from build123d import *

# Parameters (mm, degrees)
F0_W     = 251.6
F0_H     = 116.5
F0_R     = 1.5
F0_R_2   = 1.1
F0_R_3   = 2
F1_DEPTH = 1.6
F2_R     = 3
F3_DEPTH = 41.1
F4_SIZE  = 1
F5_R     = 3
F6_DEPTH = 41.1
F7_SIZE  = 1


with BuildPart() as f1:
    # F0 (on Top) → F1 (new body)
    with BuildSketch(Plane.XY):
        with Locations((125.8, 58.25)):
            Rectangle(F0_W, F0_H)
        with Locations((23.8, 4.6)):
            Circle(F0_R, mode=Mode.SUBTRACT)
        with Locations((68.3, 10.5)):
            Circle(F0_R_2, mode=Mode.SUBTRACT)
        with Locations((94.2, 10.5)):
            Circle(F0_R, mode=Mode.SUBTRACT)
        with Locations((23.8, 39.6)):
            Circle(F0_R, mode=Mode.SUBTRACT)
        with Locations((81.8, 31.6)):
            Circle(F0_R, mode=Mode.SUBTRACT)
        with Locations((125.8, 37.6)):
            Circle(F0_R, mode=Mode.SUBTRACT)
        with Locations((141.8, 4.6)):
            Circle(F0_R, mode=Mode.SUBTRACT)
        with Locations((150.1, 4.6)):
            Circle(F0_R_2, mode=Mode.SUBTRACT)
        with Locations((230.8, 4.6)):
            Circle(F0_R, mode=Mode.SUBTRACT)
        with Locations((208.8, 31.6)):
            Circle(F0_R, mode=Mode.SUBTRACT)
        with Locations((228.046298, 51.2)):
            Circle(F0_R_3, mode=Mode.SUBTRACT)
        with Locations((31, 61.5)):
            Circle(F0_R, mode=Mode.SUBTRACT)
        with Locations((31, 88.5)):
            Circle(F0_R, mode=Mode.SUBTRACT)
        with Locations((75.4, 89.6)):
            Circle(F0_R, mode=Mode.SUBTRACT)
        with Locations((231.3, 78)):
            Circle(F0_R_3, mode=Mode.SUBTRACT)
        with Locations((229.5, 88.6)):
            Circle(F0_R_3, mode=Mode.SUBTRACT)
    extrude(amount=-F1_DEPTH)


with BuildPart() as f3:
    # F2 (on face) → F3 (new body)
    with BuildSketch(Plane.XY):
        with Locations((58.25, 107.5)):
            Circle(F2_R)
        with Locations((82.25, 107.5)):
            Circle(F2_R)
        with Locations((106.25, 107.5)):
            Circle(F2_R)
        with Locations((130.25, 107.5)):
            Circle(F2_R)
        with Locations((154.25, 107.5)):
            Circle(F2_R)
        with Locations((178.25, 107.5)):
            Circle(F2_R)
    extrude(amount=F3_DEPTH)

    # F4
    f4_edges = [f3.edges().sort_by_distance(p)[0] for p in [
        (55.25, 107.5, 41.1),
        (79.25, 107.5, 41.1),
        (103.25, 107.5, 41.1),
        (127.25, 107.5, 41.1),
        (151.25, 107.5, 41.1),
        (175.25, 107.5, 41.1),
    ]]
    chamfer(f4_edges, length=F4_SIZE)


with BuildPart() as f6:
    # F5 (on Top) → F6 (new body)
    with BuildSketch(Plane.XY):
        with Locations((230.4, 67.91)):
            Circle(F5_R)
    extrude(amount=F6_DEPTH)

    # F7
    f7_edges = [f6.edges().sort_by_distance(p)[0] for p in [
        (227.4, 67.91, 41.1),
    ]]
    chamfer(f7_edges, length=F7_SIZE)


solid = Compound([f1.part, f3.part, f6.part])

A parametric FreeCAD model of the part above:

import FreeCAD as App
import Part
import Sketcher
Q = App.Units.Quantity


def edges_at(feature, points):
    """Names of the edges that pass closest to the given points."""
    edges = feature.Shape.Edges
    near = lambda p: min(range(len(edges)), key=lambda i: edges[i].distToShape(Part.Vertex(*p))[0])
    return sorted({f"Edge{near(p) + 1}" for p in points})


def add_polygon(sketch, points):
    """Adds a closed chain of lines whose ends are joined by coincident constraints."""
    first, n = sketch.GeometryCount, len(points)
    for a, b in zip(points, points[1:] + points[:1]):
        sketch.addGeometry(Part.LineSegment(App.Vector(*a, 0), App.Vector(*b, 0)), False)
    for i in range(n):
        sketch.addConstraint(Sketcher.Constraint("Coincident", first + i, 2, first + (i + 1) % n, 1))

doc = App.newDocument("Part")
params = doc.addObject("Spreadsheet::Sheet", "Params")
for row, (alias, value) in enumerate([
    ("sketch1_diameter", "3 mm"),
    ("sketch1_diameter2", "4 mm"),
    ("sketch1_diameter3", "2.2 mm"),
    ("sketch1_width", "251.6 mm"),
    ("sketch1_height", "116.5 mm"),
    ("pad1_length", "1.6 mm"),
    ("sketch2_diameter", "6 mm"),
    ("pad2_length", "41.1 mm"),
    ("chamfer_size", "1 mm"),
    ("sketch3_diameter", "6 mm"),
    ("pad3_length", "41.1 mm"),
    ("chamfer2_size", "1 mm"),
], start=1):
    params.set(f"A{row}", alias)
    params.set(f"B{row}", "=" + value)
    params.setAlias(f"B{row}", alias)

body = doc.addObject("PartDesign::Body", "Body")

# Sketch on XY plane
sketch1 = body.newObject("Sketcher::SketchObject", "Sketch")
sketch1.AttachmentSupport = (doc.getObject("XY_Plane"), [""])
sketch1.MapMode = "FlatFace"
add_polygon(sketch1, [(0, 116.5), (0, 0), (251.6, 0), (251.6, 116.5)])  # lines 0-3
sketch1.addGeometry(Part.Circle(App.Vector(23.8, 4.6, 0), App.Vector(0, 0, 1), 1.5), False)  # 4
sketch1.addGeometry(Part.Circle(App.Vector(68.3, 10.5, 0), App.Vector(0, 0, 1), 1.1), False)  # 5
sketch1.addGeometry(Part.Circle(App.Vector(94.2, 10.5, 0), App.Vector(0, 0, 1), 1.5), False)  # 6
sketch1.addGeometry(Part.Circle(App.Vector(23.8, 39.6, 0), App.Vector(0, 0, 1), 1.5), False)  # 7
sketch1.addGeometry(Part.Circle(App.Vector(81.8, 31.6, 0), App.Vector(0, 0, 1), 1.5), False)  # 8
sketch1.addGeometry(Part.Circle(App.Vector(125.8, 37.6, 0), App.Vector(0, 0, 1), 1.5), False)  # 9
sketch1.addGeometry(Part.Circle(App.Vector(141.8, 4.6, 0), App.Vector(0, 0, 1), 1.5), False)  # 10
sketch1.addGeometry(Part.Circle(App.Vector(150.1, 4.6, 0), App.Vector(0, 0, 1), 1.1), False)  # 11
sketch1.addGeometry(Part.Circle(App.Vector(230.8, 4.6, 0), App.Vector(0, 0, 1), 1.5), False)  # 12
sketch1.addGeometry(Part.Circle(App.Vector(208.8, 31.6, 0), App.Vector(0, 0, 1), 1.5), False)  # 13
sketch1.addGeometry(Part.Circle(App.Vector(31, 61.5, 0), App.Vector(0, 0, 1), 1.5), False)  # 14
sketch1.addGeometry(Part.Circle(App.Vector(31, 88.5, 0), App.Vector(0, 0, 1), 1.5), False)  # 15
sketch1.addGeometry(Part.Circle(App.Vector(75.4, 89.6, 0), App.Vector(0, 0, 1), 1.5), False)  # 16
sketch1.addGeometry(Part.Circle(App.Vector(228.046298, 51.2, 0), App.Vector(0, 0, 1), 2), False)  # 17
sketch1.addGeometry(Part.Circle(App.Vector(231.3, 78, 0), App.Vector(0, 0, 1), 2), False)  # 18
sketch1.addGeometry(Part.Circle(App.Vector(229.5, 88.6, 0), App.Vector(0, 0, 1), 2), False)  # 19
sketch1.addConstraint([
    Sketcher.Constraint("Vertical", 0),
    Sketcher.Constraint("Horizontal", 1),
    Sketcher.Constraint("Vertical", 2),
    Sketcher.Constraint("Horizontal", 3),
    Sketcher.Constraint("Coincident", 0, 2, -1, 1),
    Sketcher.Constraint("Equal", 4, 6),
    Sketcher.Constraint("Equal", 6, 7),
    Sketcher.Constraint("Equal", 7, 8),
    Sketcher.Constraint("Equal", 8, 9),
    Sketcher.Constraint("Equal", 9, 10),
    Sketcher.Constraint("Equal", 5, 11),
    Sketcher.Constraint("Equal", 10, 12),
    Sketcher.Constraint("Equal", 12, 13),
    Sketcher.Constraint("Equal", 13, 14),
    Sketcher.Constraint("Equal", 14, 15),
    Sketcher.Constraint("Equal", 15, 16),
    Sketcher.Constraint("Equal", 17, 18),
    Sketcher.Constraint("Equal", 18, 19),
    Sketcher.Constraint("Horizontal", 5, 3, 6, 3),
    Sketcher.Constraint("Horizontal", 4, 3, 10, 3),
    Sketcher.Constraint("Horizontal", 10, 3, 11, 3),
    Sketcher.Constraint("Horizontal", 11, 3, 12, 3),
    Sketcher.Constraint("Horizontal", 8, 3, 13, 3),
    Sketcher.Constraint("Vertical", 4, 3, 7, 3),
    Sketcher.Constraint("Vertical", 14, 3, 15, 3),
    Sketcher.Constraint("Diameter", 4, Q("3 mm")),
    Sketcher.Constraint("Diameter", 17, Q("4 mm")),
    Sketcher.Constraint("Diameter", 5, Q("2.2 mm")),
    Sketcher.Constraint("DistanceX", 1, 1, 1, 2, Q("251.6 mm")),
    Sketcher.Constraint("DistanceY", 0, 2, 0, 1, Q("116.5 mm")),
    Sketcher.Constraint("DistanceX", -1, 1, 14, 3, Q("31 mm")),
    Sketcher.Constraint("DistanceY", -1, 1, 18, 3, Q("78 mm")),
    Sketcher.Constraint("DistanceY", 4, 3, 7, 3, Q("35 mm")),
    Sketcher.Constraint("DistanceX", 7, 3, 8, 3, Q("58 mm")),
    Sketcher.Constraint("DistanceY", 8, 3, 7, 3, Q("8 mm")),
    Sketcher.Constraint("DistanceX", 8, 3, 9, 3, Q("44 mm")),
    Sketcher.Constraint("DistanceY", 8, 3, 9, 3, Q("6 mm")),
    Sketcher.Constraint("DistanceX", 9, 3, 10, 3, Q("16 mm")),
    Sketcher.Constraint("DistanceX", 10, 3, 12, 3, Q("89 mm")),
    Sketcher.Constraint("DistanceX", 13, 3, 12, 3, Q("22 mm")),
    Sketcher.Constraint("DistanceY", 5, 3, 14, 3, Q("51 mm")),
    Sketcher.Constraint("DistanceY", 14, 3, 15, 3, Q("27 mm")),
    Sketcher.Constraint("DistanceY", 8, 3, 16, 3, Q("58 mm")),
    Sketcher.Constraint("DistanceY", 13, 3, 19, 3, Q("57 mm")),
    Sketcher.Constraint("DistanceY", 15, 3, 3, 2, Q("28 mm")),
    Sketcher.Constraint("DistanceX", -1, 1, 4, 3, Q("23.8 mm")),
    Sketcher.Constraint("DistanceY", -1, 1, 4, 3, Q("4.6 mm")),
    Sketcher.Constraint("DistanceX", -1, 1, 5, 3, Q("68.3 mm")),
    Sketcher.Constraint("DistanceX", -1, 1, 6, 3, Q("94.2 mm")),
    Sketcher.Constraint("DistanceX", -1, 1, 11, 3, Q("150.1 mm")),
    Sketcher.Constraint("DistanceX", -1, 1, 16, 3, Q("75.4 mm")),
    Sketcher.Constraint("DistanceY", -1, 1, 17, 3, Q("51.2 mm")),
    Sketcher.Constraint("DistanceX", -1, 1, 18, 3, Q("231.3 mm")),
    Sketcher.Constraint("DistanceX", -1, 1, 19, 3, Q("229.5 mm")),
    Sketcher.Constraint("DistanceX", -1, 1, 17, 3, Q("228.046298 mm")),
])
sketch1.setExpression("Constraints[29]", "Params.sketch1_diameter")
sketch1.setExpression("Constraints[30]", "Params.sketch1_diameter2")
sketch1.setExpression("Constraints[31]", "Params.sketch1_diameter3")
sketch1.setExpression("Constraints[32]", "Params.sketch1_width")
sketch1.setExpression("Constraints[33]", "Params.sketch1_height")
pad1 = body.newObject("PartDesign::Pad", "Pad")
pad1.Profile = sketch1
pad1.setExpression("Length", "Params.pad1_length")
pad1.Reversed = True
body2 = doc.addObject("PartDesign::Body", "Body001")
body2.AllowCompound = True

# Sketch on XY plane
sketch2 = body2.newObject("Sketcher::SketchObject", "Sketch001")
sketch2.AttachmentSupport = (doc.getObject("XY_Plane001"), [""])
sketch2.MapMode = "FlatFace"
sketch2.addGeometry([
    Part.Circle(App.Vector(58.25, 107.5, 0), App.Vector(0, 0, 1), 3),  # 0
    Part.Circle(App.Vector(82.25, 107.5, 0), App.Vector(0, 0, 1), 3),  # 1
    Part.Circle(App.Vector(106.25, 107.5, 0), App.Vector(0, 0, 1), 3),  # 2
    Part.Circle(App.Vector(130.25, 107.5, 0), App.Vector(0, 0, 1), 3),  # 3
    Part.Circle(App.Vector(154.25, 107.5, 0), App.Vector(0, 0, 1), 3),  # 4
    Part.Circle(App.Vector(178.25, 107.5, 0), App.Vector(0, 0, 1), 3),  # 5
], False)
sketch2.addConstraint([
    Sketcher.Constraint("Equal", 0, 1),
    Sketcher.Constraint("Equal", 1, 2),
    Sketcher.Constraint("Equal", 2, 3),
    Sketcher.Constraint("Equal", 3, 4),
    Sketcher.Constraint("Equal", 4, 5),
    Sketcher.Constraint("Horizontal", 0, 3, 1, 3),
    Sketcher.Constraint("Horizontal", 1, 3, 2, 3),
    Sketcher.Constraint("Horizontal", 2, 3, 3, 3),
    Sketcher.Constraint("Horizontal", 3, 3, 4, 3),
    Sketcher.Constraint("Horizontal", 4, 3, 5, 3),
    Sketcher.Constraint("Diameter", 0, Q("6 mm")),
    Sketcher.Constraint("DistanceX", 0, 3, 1, 3, Q("24 mm")),
    Sketcher.Constraint("DistanceX", 1, 3, 2, 3, Q("24 mm")),
    Sketcher.Constraint("DistanceX", 2, 3, 3, 3, Q("24 mm")),
    Sketcher.Constraint("DistanceX", 3, 3, 4, 3, Q("24 mm")),
    Sketcher.Constraint("DistanceX", 4, 3, 5, 3, Q("24 mm")),
    Sketcher.Constraint("DistanceY", -1, 1, 0, 3, Q("107.5 mm")),
    Sketcher.Constraint("DistanceX", -1, 1, 0, 3, Q("58.25 mm")),
])
sketch2.setExpression("Constraints[10]", "Params.sketch2_diameter")
pad2 = body2.newObject("PartDesign::Pad", "Pad001")
pad2.Profile = sketch2
pad2.setExpression("Length", "Params.pad2_length")
doc.recompute()

chamfer = body2.newObject("PartDesign::Chamfer", "Chamfer")
chamfer.Base = (pad2, edges_at(pad2, [
    (55.25, 107.5, 41.1),
    (79.25, 107.5, 41.1),
    (103.25, 107.5, 41.1),
    (127.25, 107.5, 41.1),
    (151.25, 107.5, 41.1),
    (175.25, 107.5, 41.1),
]))
chamfer.setExpression("Size", "Params.chamfer_size")
body3 = doc.addObject("PartDesign::Body", "Body002")

# Sketch on XY plane
sketch3 = body3.newObject("Sketcher::SketchObject", "Sketch002")
sketch3.AttachmentSupport = (doc.getObject("XY_Plane002"), [""])
sketch3.MapMode = "FlatFace"
sketch3.addGeometry(Part.Circle(App.Vector(230.4, 67.91, 0), App.Vector(0, 0, 1), 3), False)
sketch3.addConstraint([
    Sketcher.Constraint("Diameter", 0, Q("6 mm")),
    Sketcher.Constraint("DistanceX", -1, 1, 0, 3, Q("230.4 mm")),
    Sketcher.Constraint("DistanceY", -1, 1, 0, 3, Q("67.91 mm")),
])
sketch3.setExpression("Constraints[0]", "Params.sketch3_diameter")
pad3 = body3.newObject("PartDesign::Pad", "Pad002")
pad3.Profile = sketch3
pad3.setExpression("Length", "Params.pad3_length")
doc.recompute()

chamfer2 = body3.newObject("PartDesign::Chamfer", "Chamfer001")
chamfer2.Base = (pad3, edges_at(pad3, [(227.4, 67.91, 41.1)]))
chamfer2.setExpression("Size", "Params.chamfer2_size")

doc.recompute()
